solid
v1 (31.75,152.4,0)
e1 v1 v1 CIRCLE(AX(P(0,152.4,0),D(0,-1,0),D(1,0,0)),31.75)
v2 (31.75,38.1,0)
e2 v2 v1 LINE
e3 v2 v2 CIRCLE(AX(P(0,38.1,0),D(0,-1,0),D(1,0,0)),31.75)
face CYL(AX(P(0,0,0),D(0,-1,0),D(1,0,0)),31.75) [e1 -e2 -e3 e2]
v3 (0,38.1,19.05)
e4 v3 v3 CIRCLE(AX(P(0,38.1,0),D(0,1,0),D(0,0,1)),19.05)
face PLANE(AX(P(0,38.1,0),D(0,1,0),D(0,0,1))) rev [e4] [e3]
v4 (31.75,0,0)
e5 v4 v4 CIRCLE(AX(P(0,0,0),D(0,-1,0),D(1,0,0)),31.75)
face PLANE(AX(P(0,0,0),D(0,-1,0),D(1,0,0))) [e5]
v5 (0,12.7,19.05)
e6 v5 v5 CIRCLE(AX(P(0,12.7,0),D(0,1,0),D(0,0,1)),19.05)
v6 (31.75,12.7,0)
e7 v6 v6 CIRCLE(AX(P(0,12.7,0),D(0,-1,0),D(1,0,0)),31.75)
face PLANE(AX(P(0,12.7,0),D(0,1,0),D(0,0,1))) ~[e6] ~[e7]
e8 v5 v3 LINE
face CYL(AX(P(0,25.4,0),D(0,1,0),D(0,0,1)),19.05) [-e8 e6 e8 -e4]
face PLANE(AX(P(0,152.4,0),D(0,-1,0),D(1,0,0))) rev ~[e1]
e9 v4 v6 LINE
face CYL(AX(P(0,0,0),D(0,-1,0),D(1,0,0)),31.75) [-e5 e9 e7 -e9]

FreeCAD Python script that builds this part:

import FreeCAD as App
import Part
import Sketcher
from FreeCAD import Vector
Q = App.Units.Quantity

doc = App.newDocument("Part")
params = doc.addObject("Spreadsheet::Sheet", "Params")
for row, (alias, value) in enumerate([
    ("sketch1_diameter", "2.5 in"),
    ("pad1_length", "6 in"),
    ("sketch2_width", "1 in"),
    ("sketch2_height", "0.5 in"),
    ("groove_angle", "360 deg"),
], start=1):
    params.set(f"A{row}", alias)
    params.set(f"B{row}", "=" + value)
    params.setAlias(f"B{row}", alias)

body = doc.addObject("PartDesign::Body", "Body")

sketch1 = body.newObject("Sketcher::SketchObject", "Sketch")
sketch1.AttachmentSupport = (doc.getObject("XZ_Plane"), [""])
sketch1.MapMode = "FlatFace"
sketch1.addGeometry(Part.Circle(Vector(0, 0, 0), Vector(0, 0, 1), 31.75), False)
sketch1.addConstraint(Sketcher.Constraint("Coincident", 0, 3, -1, 1))
sketch1.addConstraint(Sketcher.Constraint("Diameter", 0, Q("2.5 in")))
sketch1.setExpression("Constraints[1]", "Params.sketch1_diameter")
pad1 = body.newObject("PartDesign::Pad", "Pad")
pad1.Profile = sketch1
pad1.setExpression("Length", "Params.pad1_length")
pad1.Reversed = True

sketch2 = body.newObject("Sketcher::SketchObject", "Sketch001")
sketch2.AttachmentSupport = (doc.getObject("YZ_Plane"), [""])
sketch2.MapMode = "FlatFace"
sketch2.addGeometry(Part.LineSegment(Vector(12.7, 31.75, 0), Vector(12.7, 19.05, 0)), False)
sketch2.addGeometry(Part.LineSegment(Vector(12.7, 19.05, 0), Vector(38.1, 19.05, 0)), False)
sketch2.addGeometry(Part.LineSegment(Vector(38.1, 19.05, 0), Vector(38.1, 31.75, 0)), False)
sketch2.addGeometry(Part.LineSegment(Vector(38.1, 31.75, 0), Vector(12.7, 31.75, 0)), False)
sketch2.addConstraint(Sketcher.Constraint("Coincident", 0, 2, 1, 1))
sketch2.addConstraint(Sketcher.Constraint("Coincident", 1, 2, 2, 1))
sketch2.addConstraint(Sketcher.Constraint("Coincident", 2, 2, 3, 1))
sketch2.addConstraint(Sketcher.Constraint("Coincident", 3, 2, 0, 1))
sketch2.addConstraint(Sketcher.Constraint("Vertical", 0))
sketch2.addConstraint(Sketcher.Constraint("Horizontal", 1))
sketch2.addConstraint(Sketcher.Constraint("Vertical", 2))
sketch2.addConstraint(Sketcher.Constraint("Horizontal", 3))
sketch2.addConstraint(Sketcher.Constraint("DistanceX", 1, 1, 1, 2, Q("1 in")))
sketch2.addConstraint(Sketcher.Constraint("DistanceY", 0, 2, 0, 1, Q("0.5 in")))
sketch2.addConstraint(Sketcher.Constraint("DistanceX", -1, 1, 0, 2, Q("0.5 in")))
sketch2.addConstraint(Sketcher.Constraint("DistanceY", -1, 1, 0, 2, Q("0.75 in")))
sketch2.setExpression("Constraints[8]", "Params.sketch2_width")
sketch2.setExpression("Constraints[9]", "Params.sketch2_height")
groove = body.newObject("PartDesign::Groove", "Groove")
groove.Profile = sketch2
groove.ReferenceAxis = (sketch2, ["H_Axis"])
groove.setExpression("Angle", "Params.groove_angle")

doc.recompute()
